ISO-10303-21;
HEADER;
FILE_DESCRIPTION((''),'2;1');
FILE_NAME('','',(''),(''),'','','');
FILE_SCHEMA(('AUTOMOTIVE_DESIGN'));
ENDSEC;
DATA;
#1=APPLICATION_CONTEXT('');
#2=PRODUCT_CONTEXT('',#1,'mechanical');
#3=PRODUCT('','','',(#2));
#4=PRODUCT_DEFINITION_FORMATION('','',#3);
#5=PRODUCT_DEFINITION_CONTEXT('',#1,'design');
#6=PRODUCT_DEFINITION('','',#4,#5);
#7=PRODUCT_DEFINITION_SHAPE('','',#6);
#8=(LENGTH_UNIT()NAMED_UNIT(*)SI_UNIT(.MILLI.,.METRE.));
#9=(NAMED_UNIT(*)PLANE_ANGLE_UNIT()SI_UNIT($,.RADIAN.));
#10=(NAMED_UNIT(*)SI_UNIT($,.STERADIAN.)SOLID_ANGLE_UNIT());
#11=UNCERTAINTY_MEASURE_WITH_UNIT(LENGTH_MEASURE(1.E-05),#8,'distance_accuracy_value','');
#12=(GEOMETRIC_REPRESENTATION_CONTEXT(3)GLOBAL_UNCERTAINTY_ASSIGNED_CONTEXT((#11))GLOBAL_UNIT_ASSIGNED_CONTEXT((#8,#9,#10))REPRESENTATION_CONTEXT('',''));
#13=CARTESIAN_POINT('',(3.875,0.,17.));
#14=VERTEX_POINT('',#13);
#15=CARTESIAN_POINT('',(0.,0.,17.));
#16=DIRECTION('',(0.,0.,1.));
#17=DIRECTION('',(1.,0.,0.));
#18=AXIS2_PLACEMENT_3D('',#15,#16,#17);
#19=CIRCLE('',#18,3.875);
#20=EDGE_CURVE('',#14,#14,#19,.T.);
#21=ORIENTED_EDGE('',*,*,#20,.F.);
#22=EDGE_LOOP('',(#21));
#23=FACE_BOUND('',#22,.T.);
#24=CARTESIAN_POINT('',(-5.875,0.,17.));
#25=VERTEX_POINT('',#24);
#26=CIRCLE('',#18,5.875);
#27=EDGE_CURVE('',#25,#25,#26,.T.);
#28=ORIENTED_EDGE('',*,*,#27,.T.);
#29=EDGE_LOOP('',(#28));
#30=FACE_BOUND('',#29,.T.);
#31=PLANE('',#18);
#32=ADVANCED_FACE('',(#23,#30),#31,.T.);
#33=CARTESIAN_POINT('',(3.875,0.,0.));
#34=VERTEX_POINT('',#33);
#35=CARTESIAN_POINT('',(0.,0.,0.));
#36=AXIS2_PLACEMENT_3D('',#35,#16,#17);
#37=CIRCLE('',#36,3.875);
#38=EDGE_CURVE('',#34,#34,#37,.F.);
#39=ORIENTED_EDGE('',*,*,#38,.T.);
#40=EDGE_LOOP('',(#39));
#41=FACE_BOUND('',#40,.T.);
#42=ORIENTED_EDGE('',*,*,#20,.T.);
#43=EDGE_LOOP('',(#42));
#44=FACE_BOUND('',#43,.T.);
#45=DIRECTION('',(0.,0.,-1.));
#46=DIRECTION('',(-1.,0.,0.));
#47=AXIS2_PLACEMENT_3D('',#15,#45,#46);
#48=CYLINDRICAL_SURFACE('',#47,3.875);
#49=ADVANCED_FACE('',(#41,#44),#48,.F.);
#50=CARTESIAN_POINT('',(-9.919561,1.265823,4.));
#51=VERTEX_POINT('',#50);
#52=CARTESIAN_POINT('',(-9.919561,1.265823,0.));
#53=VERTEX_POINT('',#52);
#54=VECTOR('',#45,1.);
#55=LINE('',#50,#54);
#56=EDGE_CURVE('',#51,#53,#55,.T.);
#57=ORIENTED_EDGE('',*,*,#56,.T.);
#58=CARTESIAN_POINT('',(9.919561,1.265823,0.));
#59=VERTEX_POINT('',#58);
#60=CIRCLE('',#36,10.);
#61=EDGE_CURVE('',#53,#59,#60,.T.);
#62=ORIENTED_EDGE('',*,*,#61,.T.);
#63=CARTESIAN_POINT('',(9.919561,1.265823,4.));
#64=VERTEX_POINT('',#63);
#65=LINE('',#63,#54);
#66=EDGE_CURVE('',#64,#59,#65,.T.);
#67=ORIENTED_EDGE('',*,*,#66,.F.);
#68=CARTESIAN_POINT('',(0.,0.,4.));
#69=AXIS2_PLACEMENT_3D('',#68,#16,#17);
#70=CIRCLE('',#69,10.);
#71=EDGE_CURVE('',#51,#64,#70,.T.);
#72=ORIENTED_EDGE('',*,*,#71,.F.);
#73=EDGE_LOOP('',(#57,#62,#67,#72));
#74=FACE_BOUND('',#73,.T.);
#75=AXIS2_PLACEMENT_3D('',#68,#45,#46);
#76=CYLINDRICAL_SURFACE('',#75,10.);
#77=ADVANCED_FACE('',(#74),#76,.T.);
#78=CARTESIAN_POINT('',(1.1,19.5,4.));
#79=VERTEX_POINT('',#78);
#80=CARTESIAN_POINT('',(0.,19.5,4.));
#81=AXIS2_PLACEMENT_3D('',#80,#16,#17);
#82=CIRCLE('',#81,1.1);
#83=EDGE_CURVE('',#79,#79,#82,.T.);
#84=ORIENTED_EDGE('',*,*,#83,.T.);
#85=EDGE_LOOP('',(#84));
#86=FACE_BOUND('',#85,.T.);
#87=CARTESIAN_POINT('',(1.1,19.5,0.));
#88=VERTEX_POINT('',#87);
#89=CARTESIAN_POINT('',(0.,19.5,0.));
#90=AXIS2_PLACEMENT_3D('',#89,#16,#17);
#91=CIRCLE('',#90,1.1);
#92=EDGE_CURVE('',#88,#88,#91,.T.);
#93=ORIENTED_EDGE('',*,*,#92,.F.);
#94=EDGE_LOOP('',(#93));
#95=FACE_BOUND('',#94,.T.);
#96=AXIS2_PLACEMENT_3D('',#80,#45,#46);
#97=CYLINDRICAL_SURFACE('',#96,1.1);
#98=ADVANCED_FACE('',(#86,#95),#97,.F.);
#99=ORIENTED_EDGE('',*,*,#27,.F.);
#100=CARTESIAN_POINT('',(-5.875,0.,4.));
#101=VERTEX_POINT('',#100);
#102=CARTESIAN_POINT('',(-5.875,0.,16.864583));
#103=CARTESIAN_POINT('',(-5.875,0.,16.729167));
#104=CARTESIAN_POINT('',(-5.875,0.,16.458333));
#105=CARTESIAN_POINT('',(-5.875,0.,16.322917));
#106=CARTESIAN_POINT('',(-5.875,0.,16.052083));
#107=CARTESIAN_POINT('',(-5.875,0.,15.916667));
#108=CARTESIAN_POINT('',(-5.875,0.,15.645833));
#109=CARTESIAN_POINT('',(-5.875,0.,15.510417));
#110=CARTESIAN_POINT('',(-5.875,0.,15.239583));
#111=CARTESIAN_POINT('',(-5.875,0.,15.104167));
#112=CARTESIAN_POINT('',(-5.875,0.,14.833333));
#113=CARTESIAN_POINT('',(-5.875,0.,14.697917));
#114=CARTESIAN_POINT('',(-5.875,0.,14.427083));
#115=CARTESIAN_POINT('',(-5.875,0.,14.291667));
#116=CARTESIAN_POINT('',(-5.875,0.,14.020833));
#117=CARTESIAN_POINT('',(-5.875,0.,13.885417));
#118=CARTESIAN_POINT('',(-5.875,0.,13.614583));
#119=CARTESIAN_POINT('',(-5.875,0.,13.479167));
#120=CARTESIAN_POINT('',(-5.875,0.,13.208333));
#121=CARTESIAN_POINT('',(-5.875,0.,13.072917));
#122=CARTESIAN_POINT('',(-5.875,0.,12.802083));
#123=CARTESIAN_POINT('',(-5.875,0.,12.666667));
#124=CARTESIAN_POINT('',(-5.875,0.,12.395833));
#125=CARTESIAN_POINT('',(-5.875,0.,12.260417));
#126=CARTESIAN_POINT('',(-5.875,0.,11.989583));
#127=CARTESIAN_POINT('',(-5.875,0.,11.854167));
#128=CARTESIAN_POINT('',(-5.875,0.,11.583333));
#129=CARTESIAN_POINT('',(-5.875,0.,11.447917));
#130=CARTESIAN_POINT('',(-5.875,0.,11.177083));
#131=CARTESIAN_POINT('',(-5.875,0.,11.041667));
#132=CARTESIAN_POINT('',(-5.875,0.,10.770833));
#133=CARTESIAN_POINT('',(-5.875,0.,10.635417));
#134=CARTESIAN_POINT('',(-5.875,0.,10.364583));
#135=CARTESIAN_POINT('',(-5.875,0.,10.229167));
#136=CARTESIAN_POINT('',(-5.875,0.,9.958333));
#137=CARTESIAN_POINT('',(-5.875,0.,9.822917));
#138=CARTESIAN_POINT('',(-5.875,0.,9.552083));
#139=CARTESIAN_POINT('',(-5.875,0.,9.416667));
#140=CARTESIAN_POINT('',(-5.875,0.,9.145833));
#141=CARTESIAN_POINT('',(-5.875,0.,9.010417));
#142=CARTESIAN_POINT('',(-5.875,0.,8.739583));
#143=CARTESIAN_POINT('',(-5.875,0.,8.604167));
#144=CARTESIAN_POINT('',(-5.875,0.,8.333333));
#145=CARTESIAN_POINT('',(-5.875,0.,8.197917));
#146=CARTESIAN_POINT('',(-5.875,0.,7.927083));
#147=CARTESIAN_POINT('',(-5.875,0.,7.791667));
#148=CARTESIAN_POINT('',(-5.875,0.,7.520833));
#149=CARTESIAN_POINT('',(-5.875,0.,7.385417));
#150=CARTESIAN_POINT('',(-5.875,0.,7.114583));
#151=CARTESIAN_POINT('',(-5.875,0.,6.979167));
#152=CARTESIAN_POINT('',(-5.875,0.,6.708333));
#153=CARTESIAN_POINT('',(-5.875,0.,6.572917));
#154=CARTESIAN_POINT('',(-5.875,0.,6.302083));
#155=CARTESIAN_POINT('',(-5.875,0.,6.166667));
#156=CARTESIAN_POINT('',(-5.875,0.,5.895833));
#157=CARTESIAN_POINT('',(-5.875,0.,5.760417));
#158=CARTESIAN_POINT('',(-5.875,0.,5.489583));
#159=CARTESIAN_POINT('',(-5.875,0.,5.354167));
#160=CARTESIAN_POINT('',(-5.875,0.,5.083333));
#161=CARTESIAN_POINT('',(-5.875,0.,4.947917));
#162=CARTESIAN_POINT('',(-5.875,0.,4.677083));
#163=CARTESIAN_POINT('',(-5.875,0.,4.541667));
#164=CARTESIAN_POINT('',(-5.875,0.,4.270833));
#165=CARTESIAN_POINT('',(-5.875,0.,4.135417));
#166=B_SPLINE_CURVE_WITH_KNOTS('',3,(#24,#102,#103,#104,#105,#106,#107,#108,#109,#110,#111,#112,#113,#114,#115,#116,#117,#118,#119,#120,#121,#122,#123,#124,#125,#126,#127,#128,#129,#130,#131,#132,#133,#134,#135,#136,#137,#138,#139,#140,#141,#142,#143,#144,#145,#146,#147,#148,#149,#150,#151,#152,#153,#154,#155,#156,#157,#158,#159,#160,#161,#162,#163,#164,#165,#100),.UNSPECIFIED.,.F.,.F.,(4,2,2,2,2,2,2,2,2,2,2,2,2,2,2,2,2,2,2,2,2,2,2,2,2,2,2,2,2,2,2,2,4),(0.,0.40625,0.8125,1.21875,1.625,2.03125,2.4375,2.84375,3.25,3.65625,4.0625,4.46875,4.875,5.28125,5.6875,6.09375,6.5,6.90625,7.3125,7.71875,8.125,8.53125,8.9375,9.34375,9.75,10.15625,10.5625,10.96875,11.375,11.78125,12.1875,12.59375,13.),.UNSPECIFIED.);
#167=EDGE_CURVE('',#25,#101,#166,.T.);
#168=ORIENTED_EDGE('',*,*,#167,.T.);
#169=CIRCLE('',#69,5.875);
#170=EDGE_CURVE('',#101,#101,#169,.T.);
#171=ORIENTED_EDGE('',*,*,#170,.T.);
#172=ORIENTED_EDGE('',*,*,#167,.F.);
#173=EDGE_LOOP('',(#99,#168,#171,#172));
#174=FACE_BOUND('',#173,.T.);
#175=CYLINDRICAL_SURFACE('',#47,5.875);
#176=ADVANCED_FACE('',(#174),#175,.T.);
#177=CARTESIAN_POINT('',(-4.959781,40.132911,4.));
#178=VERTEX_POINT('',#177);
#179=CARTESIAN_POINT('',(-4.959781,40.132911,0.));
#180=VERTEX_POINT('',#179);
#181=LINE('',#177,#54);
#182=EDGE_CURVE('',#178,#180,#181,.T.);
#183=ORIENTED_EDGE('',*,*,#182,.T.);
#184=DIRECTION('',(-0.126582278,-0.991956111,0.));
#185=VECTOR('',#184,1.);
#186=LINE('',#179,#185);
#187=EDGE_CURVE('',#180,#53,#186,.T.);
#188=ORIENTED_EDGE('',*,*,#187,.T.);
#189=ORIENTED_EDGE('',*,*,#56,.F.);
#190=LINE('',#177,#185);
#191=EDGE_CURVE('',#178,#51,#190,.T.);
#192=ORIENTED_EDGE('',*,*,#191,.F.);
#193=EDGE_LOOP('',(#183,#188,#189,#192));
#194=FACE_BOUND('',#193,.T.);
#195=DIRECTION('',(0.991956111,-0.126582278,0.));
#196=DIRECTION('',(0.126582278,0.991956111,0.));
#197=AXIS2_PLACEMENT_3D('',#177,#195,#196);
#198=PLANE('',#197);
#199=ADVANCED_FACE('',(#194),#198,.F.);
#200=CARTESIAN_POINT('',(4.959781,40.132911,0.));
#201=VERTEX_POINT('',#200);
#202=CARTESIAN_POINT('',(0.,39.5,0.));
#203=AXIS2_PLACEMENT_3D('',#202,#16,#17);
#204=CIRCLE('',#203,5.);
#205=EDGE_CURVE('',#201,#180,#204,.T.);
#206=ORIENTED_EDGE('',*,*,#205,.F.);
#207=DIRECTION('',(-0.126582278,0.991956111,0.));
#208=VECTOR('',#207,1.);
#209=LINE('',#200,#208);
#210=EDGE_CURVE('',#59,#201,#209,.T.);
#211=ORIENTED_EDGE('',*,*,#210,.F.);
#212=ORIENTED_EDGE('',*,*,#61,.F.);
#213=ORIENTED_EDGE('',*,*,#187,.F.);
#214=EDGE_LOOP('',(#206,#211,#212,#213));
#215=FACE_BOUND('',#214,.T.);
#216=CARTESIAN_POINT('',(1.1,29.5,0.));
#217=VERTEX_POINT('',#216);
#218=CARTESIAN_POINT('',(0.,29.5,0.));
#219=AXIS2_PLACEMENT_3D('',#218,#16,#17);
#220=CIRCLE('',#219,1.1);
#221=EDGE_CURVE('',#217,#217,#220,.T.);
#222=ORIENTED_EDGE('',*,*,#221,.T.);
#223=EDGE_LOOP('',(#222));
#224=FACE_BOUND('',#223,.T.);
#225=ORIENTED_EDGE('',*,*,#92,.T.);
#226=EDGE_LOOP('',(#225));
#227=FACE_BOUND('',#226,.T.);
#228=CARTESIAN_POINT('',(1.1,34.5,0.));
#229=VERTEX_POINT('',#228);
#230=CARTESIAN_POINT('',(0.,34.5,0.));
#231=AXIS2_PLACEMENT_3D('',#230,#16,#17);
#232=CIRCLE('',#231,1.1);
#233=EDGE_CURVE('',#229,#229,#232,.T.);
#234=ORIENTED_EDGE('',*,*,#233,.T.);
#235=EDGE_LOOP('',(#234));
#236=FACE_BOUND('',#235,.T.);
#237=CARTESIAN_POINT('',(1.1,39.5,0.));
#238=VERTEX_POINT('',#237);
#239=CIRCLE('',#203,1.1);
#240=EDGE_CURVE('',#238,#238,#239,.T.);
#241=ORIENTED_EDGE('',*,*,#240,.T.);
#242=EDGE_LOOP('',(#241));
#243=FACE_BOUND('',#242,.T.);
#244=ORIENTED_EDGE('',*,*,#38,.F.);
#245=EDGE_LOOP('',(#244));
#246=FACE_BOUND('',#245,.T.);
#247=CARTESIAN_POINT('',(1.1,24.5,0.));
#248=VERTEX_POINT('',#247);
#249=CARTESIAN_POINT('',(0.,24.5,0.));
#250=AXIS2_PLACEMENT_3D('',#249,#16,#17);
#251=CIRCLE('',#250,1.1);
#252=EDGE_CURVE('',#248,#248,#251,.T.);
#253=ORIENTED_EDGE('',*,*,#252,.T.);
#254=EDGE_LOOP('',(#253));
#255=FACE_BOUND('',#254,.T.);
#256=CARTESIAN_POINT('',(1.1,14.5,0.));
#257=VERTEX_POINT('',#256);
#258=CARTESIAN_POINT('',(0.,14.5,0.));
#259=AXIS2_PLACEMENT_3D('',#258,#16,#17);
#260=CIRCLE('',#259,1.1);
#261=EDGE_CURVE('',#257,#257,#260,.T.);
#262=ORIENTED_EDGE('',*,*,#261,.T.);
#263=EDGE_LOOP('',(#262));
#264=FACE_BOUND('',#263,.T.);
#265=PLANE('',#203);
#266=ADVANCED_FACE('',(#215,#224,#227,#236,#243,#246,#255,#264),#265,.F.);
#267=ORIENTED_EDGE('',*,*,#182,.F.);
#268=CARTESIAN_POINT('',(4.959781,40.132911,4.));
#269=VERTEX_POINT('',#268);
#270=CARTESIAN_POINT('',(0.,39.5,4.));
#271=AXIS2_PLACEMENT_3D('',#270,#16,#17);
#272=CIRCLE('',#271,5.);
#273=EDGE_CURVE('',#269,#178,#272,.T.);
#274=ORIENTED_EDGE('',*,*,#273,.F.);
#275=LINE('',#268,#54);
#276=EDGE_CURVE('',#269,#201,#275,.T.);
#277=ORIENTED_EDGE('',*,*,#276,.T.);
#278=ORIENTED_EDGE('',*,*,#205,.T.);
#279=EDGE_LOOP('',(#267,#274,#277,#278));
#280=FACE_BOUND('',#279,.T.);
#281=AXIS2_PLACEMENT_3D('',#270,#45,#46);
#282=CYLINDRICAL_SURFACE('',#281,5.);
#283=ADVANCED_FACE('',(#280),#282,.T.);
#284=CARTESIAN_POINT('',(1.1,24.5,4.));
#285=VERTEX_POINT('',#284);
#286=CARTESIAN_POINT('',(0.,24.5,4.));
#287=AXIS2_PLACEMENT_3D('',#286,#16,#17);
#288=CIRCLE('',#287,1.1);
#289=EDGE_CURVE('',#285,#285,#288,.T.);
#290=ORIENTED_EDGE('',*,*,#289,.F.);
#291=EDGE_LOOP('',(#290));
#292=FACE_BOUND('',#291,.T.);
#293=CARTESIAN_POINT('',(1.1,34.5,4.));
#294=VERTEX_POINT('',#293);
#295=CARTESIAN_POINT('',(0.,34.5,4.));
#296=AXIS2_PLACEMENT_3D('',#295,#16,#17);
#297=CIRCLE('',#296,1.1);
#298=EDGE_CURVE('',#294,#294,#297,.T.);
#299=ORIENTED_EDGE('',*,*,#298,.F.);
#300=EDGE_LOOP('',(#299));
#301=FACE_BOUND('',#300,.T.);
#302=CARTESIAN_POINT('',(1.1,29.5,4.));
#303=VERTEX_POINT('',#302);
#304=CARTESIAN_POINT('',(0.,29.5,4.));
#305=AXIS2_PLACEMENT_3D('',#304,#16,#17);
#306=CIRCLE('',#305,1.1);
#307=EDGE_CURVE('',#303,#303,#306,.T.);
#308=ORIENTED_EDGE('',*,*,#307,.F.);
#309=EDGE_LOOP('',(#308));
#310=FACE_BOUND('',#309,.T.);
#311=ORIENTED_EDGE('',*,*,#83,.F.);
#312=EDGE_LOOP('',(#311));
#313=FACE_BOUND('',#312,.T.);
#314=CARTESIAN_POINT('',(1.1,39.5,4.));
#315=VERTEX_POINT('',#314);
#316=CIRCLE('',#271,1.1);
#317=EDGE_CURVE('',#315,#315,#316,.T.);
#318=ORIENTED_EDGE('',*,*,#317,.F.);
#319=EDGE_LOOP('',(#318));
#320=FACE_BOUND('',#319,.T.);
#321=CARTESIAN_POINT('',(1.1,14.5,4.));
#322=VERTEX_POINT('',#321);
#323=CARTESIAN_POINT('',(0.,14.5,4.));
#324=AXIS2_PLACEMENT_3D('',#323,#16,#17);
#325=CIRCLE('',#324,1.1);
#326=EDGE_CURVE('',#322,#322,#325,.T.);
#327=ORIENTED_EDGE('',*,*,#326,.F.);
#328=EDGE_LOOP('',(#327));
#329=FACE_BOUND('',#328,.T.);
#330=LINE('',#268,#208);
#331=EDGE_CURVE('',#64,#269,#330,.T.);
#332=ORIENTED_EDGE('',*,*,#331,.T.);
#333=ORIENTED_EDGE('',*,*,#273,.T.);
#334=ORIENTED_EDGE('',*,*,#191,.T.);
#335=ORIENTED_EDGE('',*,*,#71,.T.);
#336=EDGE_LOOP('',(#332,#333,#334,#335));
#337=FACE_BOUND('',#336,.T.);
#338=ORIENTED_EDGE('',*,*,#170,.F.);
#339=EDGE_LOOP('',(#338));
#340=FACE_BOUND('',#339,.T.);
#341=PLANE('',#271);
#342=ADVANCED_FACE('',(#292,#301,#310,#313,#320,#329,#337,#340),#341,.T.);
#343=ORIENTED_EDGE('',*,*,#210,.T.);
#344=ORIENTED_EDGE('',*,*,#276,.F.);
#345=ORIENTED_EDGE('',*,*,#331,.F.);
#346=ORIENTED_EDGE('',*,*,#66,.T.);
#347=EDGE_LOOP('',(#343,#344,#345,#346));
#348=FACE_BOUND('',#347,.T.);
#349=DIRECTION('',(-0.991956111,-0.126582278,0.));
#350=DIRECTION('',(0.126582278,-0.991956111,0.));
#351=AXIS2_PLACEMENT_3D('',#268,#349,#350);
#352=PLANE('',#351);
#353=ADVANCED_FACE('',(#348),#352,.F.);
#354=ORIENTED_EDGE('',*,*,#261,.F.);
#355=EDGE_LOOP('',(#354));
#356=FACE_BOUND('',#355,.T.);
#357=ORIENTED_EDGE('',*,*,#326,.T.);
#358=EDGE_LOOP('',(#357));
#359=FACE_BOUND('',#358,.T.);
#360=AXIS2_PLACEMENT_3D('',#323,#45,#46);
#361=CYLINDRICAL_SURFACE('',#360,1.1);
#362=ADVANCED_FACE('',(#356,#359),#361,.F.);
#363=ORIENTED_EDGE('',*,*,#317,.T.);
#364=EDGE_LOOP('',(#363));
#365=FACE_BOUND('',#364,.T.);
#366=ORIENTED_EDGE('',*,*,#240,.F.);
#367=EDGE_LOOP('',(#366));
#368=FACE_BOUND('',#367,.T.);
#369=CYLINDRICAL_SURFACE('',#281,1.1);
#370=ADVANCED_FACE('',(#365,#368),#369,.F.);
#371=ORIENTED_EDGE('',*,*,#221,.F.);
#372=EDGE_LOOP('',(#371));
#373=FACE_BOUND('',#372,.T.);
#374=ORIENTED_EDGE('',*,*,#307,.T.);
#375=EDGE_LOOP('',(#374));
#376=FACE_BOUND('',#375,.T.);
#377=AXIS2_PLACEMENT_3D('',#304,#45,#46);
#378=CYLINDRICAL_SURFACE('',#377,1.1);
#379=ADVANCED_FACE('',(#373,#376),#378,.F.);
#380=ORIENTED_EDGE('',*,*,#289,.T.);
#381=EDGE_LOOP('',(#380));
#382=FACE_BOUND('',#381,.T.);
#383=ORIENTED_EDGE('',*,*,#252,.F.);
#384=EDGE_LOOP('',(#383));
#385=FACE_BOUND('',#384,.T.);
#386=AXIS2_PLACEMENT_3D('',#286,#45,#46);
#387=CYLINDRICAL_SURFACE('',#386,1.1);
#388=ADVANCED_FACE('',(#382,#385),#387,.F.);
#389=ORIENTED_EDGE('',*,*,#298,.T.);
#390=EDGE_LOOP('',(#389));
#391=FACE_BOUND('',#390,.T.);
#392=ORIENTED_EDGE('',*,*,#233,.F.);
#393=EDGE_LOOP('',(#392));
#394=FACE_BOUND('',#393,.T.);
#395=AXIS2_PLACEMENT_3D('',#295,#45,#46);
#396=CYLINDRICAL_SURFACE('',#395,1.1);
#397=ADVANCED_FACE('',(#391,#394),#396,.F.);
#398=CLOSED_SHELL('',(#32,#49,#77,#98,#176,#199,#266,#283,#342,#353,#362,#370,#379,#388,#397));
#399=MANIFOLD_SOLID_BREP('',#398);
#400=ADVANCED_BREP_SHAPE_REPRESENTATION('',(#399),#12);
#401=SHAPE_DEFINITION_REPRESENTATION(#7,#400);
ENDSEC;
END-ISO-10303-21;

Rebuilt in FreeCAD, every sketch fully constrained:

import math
import FreeCAD as App
import Part
import Sketcher
from FreeCAD import Vector
Q = App.Units.Quantity

doc = App.newDocument("Part")
params = doc.addObject("Spreadsheet::Sheet", "Params")
for row, (alias, value) in enumerate([
    ("sketch1_radius", "10 mm"),
    ("sketch1_radius2", "5 mm"),
    ("sketch1_diameter", "2.2 mm"),
    ("pad1_length", "4 mm"),
    ("sketch2_diameter", "11.75 mm"),
    ("pad2_length", "13 mm"),
    ("sketch3_diameter", "7.75 mm"),
], start=1):
    params.set(f"A{row}", alias)
    params.set(f"B{row}", "=" + value)
    params.setAlias(f"B{row}", alias)

body = doc.addObject("PartDesign::Body", "Body")

# Sketch on XY plane
sketch1 = doc.addObject("Sketcher::SketchObject", "Sketch")
body.addObject(sketch1)
sketch1.AttachmentSupport = (doc.XY_Plane, [""])
sketch1.MapMode = "FlatFace"
sketch1.addGeometry([
    Part.LineSegment(Vector(-5, 40.1, 0), Vector(-9.9, 1.3, 0)),  # 0
    Part.ArcOfCircle(Part.Circle(Vector(0, 0, 0), Vector(0, 0, 1), 10), math.radians(173), math.radians(367)),  # 1
    Part.LineSegment(Vector(9.9, 1.3, 0), Vector(5, 40.1, 0)),  # 2
    Part.ArcOfCircle(Part.Circle(Vector(0, 39.5, 0), Vector(0, 0, 1), 5), math.radians(7), math.radians(173)),  # 3
    Part.Circle(Vector(0, 14.5, 0), Vector(0, 0, 1), 1.1),  # 4
    Part.Circle(Vector(0, 19.5, 0), Vector(0, 0, 1), 1.1),  # 5
    Part.Circle(Vector(0, 24.5, 0), Vector(0, 0, 1), 1.1),  # 6
    Part.Circle(Vector(0, 29.5, 0), Vector(0, 0, 1), 1.1),  # 7
    Part.Circle(Vector(0, 34.5, 0), Vector(0, 0, 1), 1.1),  # 8
    Part.Circle(Vector(0, 39.5, 0), Vector(0, 0, 1), 1.1),  # 9
], False)
sketch1.addConstraint([
    Sketcher.Constraint("Tangent", 0, 2, 1, 1),
    Sketcher.Constraint("Tangent", 1, 2, 2, 1),
    Sketcher.Constraint("Tangent", 2, 2, 3, 1),
    Sketcher.Constraint("Tangent", 3, 2, 0, 1),
    Sketcher.Constraint("Coincident", 1, 3, -1, 1),
    Sketcher.Constraint("Coincident", 9, 3, 3, 3),
    Sketcher.Constraint("Equal", 4, 5),
    Sketcher.Constraint("Equal", 5, 6),
    Sketcher.Constraint("Equal", 6, 7),
    Sketcher.Constraint("Equal", 7, 8),
    Sketcher.Constraint("Equal", 8, 9),
    Sketcher.Constraint("PointOnObject", 3, 3, -2),
    Sketcher.Constraint("PointOnObject", 4, 3, -2),
    Sketcher.Constraint("PointOnObject", 5, 3, -2),
    Sketcher.Constraint("PointOnObject", 6, 3, -2),
    Sketcher.Constraint("PointOnObject", 7, 3, -2),
    Sketcher.Constraint("PointOnObject", 8, 3, -2),
    Sketcher.Constraint("Radius", 1, Q("10 mm")),
    Sketcher.Constraint("Radius", 3, Q("5 mm")),
    Sketcher.Constraint("Diameter", 4, Q("2.2 mm")),
    Sketcher.Constraint("DistanceY", 4, 3, 3, 3, Q("25 mm")),
    Sketcher.Constraint("DistanceY", 4, 3, 5, 3, Q("5 mm")),
    Sketcher.Constraint("DistanceY", 5, 3, 6, 3, Q("5 mm")),
    Sketcher.Constraint("DistanceY", 6, 3, 7, 3, Q("5 mm")),
    Sketcher.Constraint("DistanceY", 8, 3, 3, 3, Q("5 mm")),
    Sketcher.Constraint("DistanceY", -1, 1, 3, 3, Q("39.5 mm")),
])
sketch1.setExpression("Constraints[17]", "Params.sketch1_radius")
sketch1.setExpression("Constraints[18]", "Params.sketch1_radius2")
sketch1.setExpression("Constraints[19]", "Params.sketch1_diameter")
pad1 = doc.addObject("PartDesign::Pad", "Pad")
body.addObject(pad1)
pad1.Profile = sketch1
pad1.setExpression("Length", "Params.pad1_length")

# Sketch on XY plane
sketch2 = doc.addObject("Sketcher::SketchObject", "Sketch001")
body.addObject(sketch2)
sketch2.AttachmentSupport = (doc.XY_Plane, [""])
sketch2.MapMode = "FlatFace"
sketch2.AttachmentOffset = App.Placement(Vector(0, 0, 4), App.Rotation())
sketch2.addGeometry(Part.Circle(Vector(0, 0, 0), Vector(0, 0, 1), 6), False)
sketch2.addConstraint([
    Sketcher.Constraint("Coincident", 0, 3, -1, 1),
    Sketcher.Constraint("Diameter", 0, Q("11.75 mm")),
])
sketch2.setExpression("Constraints[1]", "Params.sketch2_diameter")
pad2 = doc.addObject("PartDesign::Pad", "Pad001")
body.addObject(pad2)
pad2.Profile = sketch2
pad2.setExpression("Length", "Params.pad2_length")

# Sketch on XY plane
sketch3 = doc.addObject("Sketcher::SketchObject", "Sketch002")
body.addObject(sketch3)
sketch3.AttachmentSupport = (doc.XY_Plane, [""])
sketch3.MapMode = "FlatFace"
sketch3.addGeometry(Part.Circle(Vector(0, 0, 0), Vector(0, 0, 1), 3.9), False)
sketch3.addConstraint([
    Sketcher.Constraint("Coincident", 0, 3, -1, 1),
    Sketcher.Constraint("Diameter", 0, Q("7.75 mm")),
])
sketch3.setExpression("Constraints[1]", "Params.sketch3_diameter")
pocket1 = doc.addObject("PartDesign::Pocket", "Pocket")
body.addObject(pocket1)
pocket1.Profile = sketch3
pocket1.Type = "ThroughAll"
pocket1.Midplane = True

doc.recompute()
